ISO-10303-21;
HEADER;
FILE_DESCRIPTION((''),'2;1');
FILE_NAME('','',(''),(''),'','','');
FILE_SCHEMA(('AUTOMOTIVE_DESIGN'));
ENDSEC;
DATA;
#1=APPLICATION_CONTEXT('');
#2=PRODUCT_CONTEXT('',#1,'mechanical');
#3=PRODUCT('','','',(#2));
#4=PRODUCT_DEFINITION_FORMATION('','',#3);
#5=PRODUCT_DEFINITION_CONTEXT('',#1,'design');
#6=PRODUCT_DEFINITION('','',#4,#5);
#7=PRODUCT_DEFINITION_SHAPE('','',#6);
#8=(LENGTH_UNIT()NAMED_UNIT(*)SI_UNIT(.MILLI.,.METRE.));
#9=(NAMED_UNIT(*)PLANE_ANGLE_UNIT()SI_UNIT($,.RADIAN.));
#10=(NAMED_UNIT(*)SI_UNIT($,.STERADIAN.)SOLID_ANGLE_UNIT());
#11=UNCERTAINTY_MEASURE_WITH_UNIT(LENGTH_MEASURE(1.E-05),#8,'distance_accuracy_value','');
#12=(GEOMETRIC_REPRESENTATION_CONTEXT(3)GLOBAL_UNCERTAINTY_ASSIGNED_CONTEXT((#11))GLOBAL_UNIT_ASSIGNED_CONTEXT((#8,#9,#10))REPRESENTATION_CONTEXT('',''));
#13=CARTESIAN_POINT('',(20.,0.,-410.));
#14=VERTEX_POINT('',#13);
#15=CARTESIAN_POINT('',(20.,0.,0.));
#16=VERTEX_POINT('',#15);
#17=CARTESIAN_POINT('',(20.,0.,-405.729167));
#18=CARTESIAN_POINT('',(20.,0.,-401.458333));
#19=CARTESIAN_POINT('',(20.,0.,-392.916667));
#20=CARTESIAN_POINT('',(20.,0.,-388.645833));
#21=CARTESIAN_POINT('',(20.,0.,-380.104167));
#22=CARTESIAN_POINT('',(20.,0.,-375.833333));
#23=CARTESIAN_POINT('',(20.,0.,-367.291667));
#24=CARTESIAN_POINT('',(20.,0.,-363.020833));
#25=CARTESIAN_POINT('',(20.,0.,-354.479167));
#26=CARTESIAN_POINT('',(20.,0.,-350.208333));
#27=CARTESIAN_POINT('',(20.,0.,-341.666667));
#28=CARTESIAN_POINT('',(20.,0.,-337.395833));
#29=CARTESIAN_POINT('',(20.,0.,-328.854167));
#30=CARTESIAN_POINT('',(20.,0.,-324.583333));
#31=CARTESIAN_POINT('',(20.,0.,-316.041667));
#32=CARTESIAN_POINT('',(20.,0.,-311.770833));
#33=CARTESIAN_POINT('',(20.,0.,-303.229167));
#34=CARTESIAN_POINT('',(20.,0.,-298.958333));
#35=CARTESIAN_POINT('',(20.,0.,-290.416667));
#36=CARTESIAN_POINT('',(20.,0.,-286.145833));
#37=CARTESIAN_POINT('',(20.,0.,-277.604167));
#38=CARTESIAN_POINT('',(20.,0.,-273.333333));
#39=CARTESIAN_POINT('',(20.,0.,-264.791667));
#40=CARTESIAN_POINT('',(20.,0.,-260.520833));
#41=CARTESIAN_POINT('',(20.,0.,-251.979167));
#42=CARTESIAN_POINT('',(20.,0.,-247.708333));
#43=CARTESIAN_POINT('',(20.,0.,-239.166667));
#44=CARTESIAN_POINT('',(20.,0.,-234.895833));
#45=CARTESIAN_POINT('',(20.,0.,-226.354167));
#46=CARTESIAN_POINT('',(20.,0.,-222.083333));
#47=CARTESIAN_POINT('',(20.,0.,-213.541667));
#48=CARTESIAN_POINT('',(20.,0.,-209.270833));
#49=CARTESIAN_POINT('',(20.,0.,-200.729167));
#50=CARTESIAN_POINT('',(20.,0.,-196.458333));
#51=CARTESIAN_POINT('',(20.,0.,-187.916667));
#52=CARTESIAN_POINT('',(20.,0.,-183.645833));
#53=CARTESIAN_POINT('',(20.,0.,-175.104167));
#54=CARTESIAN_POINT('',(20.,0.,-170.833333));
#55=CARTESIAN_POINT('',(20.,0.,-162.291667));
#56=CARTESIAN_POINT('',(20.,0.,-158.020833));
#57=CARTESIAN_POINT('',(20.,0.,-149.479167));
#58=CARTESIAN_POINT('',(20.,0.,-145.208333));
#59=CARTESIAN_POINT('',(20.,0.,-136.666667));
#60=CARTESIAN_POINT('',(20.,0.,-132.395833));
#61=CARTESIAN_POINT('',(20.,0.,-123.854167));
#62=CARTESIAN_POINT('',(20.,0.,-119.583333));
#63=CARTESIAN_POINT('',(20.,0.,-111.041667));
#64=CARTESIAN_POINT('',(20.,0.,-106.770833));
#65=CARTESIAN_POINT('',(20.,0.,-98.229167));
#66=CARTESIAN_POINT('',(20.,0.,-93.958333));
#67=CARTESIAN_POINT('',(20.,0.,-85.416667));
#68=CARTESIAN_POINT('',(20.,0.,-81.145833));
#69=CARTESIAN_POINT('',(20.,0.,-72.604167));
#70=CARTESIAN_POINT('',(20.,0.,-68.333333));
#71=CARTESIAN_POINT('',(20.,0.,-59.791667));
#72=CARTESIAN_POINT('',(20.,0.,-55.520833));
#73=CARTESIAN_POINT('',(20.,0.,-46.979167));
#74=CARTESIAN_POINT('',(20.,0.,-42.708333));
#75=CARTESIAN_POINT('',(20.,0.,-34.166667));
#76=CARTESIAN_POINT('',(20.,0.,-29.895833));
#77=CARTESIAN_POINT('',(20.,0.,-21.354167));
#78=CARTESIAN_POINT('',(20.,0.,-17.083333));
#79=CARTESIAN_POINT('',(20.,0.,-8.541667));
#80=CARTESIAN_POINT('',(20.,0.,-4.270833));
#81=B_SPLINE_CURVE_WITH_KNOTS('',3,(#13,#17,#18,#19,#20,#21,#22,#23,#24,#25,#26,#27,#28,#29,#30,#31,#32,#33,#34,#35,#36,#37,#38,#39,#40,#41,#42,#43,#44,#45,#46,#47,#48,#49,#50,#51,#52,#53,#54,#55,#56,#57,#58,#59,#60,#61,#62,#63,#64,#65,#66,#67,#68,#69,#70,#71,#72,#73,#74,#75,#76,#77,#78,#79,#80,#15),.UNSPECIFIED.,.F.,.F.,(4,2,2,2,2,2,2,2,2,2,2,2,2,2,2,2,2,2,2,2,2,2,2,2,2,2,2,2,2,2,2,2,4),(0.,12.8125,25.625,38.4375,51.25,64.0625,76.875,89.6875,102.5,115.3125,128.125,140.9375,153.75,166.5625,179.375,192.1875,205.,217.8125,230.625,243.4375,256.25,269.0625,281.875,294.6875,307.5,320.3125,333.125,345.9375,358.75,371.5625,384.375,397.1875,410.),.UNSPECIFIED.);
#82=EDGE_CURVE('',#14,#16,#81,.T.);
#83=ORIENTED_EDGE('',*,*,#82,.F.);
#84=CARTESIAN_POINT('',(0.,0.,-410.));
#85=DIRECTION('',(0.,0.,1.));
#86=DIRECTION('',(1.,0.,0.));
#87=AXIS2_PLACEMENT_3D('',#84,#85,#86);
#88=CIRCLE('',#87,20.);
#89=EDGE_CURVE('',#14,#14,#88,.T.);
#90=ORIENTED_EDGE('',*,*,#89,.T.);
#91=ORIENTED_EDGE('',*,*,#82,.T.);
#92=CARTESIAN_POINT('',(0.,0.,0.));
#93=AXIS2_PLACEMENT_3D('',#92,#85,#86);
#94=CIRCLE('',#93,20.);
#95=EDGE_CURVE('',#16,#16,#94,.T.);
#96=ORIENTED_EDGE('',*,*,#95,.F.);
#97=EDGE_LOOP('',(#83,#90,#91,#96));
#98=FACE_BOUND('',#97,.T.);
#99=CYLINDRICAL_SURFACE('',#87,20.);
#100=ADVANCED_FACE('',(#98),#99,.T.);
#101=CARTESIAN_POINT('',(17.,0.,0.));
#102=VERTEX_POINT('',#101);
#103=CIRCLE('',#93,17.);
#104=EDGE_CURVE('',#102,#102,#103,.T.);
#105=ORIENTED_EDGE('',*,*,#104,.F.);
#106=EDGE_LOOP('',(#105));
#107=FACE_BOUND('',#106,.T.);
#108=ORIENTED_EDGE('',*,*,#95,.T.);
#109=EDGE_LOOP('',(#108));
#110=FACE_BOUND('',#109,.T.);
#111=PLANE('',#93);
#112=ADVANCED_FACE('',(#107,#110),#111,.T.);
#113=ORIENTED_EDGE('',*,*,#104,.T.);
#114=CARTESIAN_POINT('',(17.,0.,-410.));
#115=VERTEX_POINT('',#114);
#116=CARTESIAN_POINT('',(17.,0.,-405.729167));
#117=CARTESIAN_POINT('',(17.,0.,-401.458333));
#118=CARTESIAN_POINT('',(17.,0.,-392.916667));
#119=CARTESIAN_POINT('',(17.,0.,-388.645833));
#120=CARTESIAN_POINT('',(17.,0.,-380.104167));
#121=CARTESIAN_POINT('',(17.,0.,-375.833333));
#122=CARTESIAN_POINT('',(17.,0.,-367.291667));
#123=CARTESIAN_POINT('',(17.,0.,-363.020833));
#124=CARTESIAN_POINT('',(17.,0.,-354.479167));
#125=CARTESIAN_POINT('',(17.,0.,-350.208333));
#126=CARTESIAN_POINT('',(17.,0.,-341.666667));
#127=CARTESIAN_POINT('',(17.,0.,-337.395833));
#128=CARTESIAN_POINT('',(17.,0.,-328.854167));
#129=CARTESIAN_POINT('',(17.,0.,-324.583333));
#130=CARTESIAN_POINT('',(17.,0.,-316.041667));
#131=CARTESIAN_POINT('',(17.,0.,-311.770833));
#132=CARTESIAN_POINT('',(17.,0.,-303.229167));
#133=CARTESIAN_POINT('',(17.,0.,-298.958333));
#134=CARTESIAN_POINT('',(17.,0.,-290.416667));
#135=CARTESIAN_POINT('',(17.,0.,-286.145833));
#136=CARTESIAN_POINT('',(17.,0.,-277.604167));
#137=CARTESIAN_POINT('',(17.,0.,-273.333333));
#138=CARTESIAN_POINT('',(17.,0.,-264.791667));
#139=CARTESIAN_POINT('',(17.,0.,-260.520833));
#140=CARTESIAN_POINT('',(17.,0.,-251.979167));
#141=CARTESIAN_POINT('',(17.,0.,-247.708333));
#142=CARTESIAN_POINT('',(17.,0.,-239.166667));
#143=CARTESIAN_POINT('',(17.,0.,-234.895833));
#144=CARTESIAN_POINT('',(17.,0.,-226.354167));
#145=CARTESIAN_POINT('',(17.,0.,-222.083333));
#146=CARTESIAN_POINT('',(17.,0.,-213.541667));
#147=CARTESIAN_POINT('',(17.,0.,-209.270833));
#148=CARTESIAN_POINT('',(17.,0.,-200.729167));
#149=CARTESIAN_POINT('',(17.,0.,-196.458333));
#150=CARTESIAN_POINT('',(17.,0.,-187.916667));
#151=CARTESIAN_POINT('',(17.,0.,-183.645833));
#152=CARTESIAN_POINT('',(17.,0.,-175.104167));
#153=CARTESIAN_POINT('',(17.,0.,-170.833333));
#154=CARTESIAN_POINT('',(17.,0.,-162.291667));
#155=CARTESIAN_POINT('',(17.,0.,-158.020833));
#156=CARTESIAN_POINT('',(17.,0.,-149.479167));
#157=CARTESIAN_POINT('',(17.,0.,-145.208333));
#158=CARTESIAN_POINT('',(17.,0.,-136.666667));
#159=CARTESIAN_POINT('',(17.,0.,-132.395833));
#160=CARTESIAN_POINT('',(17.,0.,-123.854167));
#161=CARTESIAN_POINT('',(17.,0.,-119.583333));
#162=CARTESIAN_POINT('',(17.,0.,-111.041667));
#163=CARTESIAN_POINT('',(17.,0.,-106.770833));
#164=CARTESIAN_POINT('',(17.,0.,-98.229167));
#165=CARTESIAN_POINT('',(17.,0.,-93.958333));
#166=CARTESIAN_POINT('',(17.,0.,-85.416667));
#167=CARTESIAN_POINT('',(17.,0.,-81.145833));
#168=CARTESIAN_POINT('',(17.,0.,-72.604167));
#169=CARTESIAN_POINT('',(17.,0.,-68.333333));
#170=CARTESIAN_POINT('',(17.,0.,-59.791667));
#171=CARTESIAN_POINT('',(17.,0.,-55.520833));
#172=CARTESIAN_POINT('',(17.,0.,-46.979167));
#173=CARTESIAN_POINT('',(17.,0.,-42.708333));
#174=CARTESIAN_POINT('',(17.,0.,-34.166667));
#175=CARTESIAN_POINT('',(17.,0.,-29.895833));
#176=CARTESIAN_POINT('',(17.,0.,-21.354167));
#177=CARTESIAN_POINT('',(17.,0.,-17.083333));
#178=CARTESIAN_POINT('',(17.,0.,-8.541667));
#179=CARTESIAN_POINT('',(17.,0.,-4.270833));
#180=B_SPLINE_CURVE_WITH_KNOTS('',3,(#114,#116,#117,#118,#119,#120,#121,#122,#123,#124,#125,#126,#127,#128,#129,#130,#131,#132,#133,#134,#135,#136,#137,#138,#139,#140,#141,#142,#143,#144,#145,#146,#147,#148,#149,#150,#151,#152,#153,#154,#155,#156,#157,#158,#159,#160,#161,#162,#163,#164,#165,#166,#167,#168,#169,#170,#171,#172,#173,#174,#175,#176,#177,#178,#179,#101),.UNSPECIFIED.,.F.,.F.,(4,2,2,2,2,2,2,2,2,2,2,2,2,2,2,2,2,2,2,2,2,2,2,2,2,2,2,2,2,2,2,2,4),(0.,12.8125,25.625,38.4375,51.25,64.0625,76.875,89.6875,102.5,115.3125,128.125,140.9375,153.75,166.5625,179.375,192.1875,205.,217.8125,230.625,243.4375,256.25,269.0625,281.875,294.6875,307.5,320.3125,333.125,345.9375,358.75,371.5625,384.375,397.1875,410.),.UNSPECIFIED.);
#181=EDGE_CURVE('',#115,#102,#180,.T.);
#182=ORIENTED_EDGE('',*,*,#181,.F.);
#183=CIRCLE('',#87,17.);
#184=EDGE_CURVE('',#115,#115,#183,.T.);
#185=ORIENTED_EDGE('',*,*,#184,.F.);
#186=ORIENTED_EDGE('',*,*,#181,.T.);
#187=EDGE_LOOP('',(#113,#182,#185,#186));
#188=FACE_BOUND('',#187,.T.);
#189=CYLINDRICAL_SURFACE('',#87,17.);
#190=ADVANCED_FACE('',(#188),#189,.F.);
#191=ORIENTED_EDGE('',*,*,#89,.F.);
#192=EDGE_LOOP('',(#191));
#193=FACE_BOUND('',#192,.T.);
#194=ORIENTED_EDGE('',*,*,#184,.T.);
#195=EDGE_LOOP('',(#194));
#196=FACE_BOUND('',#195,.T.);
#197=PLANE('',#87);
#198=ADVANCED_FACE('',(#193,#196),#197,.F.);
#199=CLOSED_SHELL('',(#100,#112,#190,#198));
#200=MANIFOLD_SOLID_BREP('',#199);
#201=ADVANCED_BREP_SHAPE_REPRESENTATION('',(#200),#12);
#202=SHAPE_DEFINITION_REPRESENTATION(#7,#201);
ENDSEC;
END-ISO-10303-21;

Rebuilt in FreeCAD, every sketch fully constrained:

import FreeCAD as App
import Part
import Sketcher
Q = App.Units.Quantity

doc = App.newDocument("Part")
body = doc.addObject("PartDesign::Body", "Body")

# Sketch on XY plane
sketch1 = body.newObject("Sketcher::SketchObject", "Sketch")
sketch1.AttachmentSupport = (doc.getObject("XY_Plane"), [""])
sketch1.MapMode = "FlatFace"
sketch1.addGeometry(Part.Circle(App.Vector(0, 0, 0), App.Vector(0, 0, 1), 20), False)
sketch1.addConstraint(Sketcher.Constraint("Coincident", 0, 3, -1, 1))
sketch1.addConstraint(Sketcher.Constraint("Diameter", 0, Q("40 mm")))
pad1 = body.newObject("PartDesign::Pad", "Pad")
pad1.Profile = sketch1
pad1.Length = 410
pad1.Reversed = True

# Sketch on XY plane
sketch2 = body.newObject("Sketcher::SketchObject", "Sketch001")
sketch2.AttachmentSupport = (doc.getObject("XY_Plane"), [""])
sketch2.MapMode = "FlatFace"
sketch2.addGeometry(Part.Circle(App.Vector(0, 0, 0), App.Vector(0, 0, 1), 17), False)
sketch2.addConstraint(Sketcher.Constraint("Coincident", 0, 3, -1, 1))
sketch2.addConstraint(Sketcher.Constraint("Diameter", 0, Q("34 mm")))
pocket1 = body.newObject("PartDesign::Pocket", "Pocket")
pocket1.Profile = sketch2
pocket1.Type = "ThroughAll"

doc.recompute()
